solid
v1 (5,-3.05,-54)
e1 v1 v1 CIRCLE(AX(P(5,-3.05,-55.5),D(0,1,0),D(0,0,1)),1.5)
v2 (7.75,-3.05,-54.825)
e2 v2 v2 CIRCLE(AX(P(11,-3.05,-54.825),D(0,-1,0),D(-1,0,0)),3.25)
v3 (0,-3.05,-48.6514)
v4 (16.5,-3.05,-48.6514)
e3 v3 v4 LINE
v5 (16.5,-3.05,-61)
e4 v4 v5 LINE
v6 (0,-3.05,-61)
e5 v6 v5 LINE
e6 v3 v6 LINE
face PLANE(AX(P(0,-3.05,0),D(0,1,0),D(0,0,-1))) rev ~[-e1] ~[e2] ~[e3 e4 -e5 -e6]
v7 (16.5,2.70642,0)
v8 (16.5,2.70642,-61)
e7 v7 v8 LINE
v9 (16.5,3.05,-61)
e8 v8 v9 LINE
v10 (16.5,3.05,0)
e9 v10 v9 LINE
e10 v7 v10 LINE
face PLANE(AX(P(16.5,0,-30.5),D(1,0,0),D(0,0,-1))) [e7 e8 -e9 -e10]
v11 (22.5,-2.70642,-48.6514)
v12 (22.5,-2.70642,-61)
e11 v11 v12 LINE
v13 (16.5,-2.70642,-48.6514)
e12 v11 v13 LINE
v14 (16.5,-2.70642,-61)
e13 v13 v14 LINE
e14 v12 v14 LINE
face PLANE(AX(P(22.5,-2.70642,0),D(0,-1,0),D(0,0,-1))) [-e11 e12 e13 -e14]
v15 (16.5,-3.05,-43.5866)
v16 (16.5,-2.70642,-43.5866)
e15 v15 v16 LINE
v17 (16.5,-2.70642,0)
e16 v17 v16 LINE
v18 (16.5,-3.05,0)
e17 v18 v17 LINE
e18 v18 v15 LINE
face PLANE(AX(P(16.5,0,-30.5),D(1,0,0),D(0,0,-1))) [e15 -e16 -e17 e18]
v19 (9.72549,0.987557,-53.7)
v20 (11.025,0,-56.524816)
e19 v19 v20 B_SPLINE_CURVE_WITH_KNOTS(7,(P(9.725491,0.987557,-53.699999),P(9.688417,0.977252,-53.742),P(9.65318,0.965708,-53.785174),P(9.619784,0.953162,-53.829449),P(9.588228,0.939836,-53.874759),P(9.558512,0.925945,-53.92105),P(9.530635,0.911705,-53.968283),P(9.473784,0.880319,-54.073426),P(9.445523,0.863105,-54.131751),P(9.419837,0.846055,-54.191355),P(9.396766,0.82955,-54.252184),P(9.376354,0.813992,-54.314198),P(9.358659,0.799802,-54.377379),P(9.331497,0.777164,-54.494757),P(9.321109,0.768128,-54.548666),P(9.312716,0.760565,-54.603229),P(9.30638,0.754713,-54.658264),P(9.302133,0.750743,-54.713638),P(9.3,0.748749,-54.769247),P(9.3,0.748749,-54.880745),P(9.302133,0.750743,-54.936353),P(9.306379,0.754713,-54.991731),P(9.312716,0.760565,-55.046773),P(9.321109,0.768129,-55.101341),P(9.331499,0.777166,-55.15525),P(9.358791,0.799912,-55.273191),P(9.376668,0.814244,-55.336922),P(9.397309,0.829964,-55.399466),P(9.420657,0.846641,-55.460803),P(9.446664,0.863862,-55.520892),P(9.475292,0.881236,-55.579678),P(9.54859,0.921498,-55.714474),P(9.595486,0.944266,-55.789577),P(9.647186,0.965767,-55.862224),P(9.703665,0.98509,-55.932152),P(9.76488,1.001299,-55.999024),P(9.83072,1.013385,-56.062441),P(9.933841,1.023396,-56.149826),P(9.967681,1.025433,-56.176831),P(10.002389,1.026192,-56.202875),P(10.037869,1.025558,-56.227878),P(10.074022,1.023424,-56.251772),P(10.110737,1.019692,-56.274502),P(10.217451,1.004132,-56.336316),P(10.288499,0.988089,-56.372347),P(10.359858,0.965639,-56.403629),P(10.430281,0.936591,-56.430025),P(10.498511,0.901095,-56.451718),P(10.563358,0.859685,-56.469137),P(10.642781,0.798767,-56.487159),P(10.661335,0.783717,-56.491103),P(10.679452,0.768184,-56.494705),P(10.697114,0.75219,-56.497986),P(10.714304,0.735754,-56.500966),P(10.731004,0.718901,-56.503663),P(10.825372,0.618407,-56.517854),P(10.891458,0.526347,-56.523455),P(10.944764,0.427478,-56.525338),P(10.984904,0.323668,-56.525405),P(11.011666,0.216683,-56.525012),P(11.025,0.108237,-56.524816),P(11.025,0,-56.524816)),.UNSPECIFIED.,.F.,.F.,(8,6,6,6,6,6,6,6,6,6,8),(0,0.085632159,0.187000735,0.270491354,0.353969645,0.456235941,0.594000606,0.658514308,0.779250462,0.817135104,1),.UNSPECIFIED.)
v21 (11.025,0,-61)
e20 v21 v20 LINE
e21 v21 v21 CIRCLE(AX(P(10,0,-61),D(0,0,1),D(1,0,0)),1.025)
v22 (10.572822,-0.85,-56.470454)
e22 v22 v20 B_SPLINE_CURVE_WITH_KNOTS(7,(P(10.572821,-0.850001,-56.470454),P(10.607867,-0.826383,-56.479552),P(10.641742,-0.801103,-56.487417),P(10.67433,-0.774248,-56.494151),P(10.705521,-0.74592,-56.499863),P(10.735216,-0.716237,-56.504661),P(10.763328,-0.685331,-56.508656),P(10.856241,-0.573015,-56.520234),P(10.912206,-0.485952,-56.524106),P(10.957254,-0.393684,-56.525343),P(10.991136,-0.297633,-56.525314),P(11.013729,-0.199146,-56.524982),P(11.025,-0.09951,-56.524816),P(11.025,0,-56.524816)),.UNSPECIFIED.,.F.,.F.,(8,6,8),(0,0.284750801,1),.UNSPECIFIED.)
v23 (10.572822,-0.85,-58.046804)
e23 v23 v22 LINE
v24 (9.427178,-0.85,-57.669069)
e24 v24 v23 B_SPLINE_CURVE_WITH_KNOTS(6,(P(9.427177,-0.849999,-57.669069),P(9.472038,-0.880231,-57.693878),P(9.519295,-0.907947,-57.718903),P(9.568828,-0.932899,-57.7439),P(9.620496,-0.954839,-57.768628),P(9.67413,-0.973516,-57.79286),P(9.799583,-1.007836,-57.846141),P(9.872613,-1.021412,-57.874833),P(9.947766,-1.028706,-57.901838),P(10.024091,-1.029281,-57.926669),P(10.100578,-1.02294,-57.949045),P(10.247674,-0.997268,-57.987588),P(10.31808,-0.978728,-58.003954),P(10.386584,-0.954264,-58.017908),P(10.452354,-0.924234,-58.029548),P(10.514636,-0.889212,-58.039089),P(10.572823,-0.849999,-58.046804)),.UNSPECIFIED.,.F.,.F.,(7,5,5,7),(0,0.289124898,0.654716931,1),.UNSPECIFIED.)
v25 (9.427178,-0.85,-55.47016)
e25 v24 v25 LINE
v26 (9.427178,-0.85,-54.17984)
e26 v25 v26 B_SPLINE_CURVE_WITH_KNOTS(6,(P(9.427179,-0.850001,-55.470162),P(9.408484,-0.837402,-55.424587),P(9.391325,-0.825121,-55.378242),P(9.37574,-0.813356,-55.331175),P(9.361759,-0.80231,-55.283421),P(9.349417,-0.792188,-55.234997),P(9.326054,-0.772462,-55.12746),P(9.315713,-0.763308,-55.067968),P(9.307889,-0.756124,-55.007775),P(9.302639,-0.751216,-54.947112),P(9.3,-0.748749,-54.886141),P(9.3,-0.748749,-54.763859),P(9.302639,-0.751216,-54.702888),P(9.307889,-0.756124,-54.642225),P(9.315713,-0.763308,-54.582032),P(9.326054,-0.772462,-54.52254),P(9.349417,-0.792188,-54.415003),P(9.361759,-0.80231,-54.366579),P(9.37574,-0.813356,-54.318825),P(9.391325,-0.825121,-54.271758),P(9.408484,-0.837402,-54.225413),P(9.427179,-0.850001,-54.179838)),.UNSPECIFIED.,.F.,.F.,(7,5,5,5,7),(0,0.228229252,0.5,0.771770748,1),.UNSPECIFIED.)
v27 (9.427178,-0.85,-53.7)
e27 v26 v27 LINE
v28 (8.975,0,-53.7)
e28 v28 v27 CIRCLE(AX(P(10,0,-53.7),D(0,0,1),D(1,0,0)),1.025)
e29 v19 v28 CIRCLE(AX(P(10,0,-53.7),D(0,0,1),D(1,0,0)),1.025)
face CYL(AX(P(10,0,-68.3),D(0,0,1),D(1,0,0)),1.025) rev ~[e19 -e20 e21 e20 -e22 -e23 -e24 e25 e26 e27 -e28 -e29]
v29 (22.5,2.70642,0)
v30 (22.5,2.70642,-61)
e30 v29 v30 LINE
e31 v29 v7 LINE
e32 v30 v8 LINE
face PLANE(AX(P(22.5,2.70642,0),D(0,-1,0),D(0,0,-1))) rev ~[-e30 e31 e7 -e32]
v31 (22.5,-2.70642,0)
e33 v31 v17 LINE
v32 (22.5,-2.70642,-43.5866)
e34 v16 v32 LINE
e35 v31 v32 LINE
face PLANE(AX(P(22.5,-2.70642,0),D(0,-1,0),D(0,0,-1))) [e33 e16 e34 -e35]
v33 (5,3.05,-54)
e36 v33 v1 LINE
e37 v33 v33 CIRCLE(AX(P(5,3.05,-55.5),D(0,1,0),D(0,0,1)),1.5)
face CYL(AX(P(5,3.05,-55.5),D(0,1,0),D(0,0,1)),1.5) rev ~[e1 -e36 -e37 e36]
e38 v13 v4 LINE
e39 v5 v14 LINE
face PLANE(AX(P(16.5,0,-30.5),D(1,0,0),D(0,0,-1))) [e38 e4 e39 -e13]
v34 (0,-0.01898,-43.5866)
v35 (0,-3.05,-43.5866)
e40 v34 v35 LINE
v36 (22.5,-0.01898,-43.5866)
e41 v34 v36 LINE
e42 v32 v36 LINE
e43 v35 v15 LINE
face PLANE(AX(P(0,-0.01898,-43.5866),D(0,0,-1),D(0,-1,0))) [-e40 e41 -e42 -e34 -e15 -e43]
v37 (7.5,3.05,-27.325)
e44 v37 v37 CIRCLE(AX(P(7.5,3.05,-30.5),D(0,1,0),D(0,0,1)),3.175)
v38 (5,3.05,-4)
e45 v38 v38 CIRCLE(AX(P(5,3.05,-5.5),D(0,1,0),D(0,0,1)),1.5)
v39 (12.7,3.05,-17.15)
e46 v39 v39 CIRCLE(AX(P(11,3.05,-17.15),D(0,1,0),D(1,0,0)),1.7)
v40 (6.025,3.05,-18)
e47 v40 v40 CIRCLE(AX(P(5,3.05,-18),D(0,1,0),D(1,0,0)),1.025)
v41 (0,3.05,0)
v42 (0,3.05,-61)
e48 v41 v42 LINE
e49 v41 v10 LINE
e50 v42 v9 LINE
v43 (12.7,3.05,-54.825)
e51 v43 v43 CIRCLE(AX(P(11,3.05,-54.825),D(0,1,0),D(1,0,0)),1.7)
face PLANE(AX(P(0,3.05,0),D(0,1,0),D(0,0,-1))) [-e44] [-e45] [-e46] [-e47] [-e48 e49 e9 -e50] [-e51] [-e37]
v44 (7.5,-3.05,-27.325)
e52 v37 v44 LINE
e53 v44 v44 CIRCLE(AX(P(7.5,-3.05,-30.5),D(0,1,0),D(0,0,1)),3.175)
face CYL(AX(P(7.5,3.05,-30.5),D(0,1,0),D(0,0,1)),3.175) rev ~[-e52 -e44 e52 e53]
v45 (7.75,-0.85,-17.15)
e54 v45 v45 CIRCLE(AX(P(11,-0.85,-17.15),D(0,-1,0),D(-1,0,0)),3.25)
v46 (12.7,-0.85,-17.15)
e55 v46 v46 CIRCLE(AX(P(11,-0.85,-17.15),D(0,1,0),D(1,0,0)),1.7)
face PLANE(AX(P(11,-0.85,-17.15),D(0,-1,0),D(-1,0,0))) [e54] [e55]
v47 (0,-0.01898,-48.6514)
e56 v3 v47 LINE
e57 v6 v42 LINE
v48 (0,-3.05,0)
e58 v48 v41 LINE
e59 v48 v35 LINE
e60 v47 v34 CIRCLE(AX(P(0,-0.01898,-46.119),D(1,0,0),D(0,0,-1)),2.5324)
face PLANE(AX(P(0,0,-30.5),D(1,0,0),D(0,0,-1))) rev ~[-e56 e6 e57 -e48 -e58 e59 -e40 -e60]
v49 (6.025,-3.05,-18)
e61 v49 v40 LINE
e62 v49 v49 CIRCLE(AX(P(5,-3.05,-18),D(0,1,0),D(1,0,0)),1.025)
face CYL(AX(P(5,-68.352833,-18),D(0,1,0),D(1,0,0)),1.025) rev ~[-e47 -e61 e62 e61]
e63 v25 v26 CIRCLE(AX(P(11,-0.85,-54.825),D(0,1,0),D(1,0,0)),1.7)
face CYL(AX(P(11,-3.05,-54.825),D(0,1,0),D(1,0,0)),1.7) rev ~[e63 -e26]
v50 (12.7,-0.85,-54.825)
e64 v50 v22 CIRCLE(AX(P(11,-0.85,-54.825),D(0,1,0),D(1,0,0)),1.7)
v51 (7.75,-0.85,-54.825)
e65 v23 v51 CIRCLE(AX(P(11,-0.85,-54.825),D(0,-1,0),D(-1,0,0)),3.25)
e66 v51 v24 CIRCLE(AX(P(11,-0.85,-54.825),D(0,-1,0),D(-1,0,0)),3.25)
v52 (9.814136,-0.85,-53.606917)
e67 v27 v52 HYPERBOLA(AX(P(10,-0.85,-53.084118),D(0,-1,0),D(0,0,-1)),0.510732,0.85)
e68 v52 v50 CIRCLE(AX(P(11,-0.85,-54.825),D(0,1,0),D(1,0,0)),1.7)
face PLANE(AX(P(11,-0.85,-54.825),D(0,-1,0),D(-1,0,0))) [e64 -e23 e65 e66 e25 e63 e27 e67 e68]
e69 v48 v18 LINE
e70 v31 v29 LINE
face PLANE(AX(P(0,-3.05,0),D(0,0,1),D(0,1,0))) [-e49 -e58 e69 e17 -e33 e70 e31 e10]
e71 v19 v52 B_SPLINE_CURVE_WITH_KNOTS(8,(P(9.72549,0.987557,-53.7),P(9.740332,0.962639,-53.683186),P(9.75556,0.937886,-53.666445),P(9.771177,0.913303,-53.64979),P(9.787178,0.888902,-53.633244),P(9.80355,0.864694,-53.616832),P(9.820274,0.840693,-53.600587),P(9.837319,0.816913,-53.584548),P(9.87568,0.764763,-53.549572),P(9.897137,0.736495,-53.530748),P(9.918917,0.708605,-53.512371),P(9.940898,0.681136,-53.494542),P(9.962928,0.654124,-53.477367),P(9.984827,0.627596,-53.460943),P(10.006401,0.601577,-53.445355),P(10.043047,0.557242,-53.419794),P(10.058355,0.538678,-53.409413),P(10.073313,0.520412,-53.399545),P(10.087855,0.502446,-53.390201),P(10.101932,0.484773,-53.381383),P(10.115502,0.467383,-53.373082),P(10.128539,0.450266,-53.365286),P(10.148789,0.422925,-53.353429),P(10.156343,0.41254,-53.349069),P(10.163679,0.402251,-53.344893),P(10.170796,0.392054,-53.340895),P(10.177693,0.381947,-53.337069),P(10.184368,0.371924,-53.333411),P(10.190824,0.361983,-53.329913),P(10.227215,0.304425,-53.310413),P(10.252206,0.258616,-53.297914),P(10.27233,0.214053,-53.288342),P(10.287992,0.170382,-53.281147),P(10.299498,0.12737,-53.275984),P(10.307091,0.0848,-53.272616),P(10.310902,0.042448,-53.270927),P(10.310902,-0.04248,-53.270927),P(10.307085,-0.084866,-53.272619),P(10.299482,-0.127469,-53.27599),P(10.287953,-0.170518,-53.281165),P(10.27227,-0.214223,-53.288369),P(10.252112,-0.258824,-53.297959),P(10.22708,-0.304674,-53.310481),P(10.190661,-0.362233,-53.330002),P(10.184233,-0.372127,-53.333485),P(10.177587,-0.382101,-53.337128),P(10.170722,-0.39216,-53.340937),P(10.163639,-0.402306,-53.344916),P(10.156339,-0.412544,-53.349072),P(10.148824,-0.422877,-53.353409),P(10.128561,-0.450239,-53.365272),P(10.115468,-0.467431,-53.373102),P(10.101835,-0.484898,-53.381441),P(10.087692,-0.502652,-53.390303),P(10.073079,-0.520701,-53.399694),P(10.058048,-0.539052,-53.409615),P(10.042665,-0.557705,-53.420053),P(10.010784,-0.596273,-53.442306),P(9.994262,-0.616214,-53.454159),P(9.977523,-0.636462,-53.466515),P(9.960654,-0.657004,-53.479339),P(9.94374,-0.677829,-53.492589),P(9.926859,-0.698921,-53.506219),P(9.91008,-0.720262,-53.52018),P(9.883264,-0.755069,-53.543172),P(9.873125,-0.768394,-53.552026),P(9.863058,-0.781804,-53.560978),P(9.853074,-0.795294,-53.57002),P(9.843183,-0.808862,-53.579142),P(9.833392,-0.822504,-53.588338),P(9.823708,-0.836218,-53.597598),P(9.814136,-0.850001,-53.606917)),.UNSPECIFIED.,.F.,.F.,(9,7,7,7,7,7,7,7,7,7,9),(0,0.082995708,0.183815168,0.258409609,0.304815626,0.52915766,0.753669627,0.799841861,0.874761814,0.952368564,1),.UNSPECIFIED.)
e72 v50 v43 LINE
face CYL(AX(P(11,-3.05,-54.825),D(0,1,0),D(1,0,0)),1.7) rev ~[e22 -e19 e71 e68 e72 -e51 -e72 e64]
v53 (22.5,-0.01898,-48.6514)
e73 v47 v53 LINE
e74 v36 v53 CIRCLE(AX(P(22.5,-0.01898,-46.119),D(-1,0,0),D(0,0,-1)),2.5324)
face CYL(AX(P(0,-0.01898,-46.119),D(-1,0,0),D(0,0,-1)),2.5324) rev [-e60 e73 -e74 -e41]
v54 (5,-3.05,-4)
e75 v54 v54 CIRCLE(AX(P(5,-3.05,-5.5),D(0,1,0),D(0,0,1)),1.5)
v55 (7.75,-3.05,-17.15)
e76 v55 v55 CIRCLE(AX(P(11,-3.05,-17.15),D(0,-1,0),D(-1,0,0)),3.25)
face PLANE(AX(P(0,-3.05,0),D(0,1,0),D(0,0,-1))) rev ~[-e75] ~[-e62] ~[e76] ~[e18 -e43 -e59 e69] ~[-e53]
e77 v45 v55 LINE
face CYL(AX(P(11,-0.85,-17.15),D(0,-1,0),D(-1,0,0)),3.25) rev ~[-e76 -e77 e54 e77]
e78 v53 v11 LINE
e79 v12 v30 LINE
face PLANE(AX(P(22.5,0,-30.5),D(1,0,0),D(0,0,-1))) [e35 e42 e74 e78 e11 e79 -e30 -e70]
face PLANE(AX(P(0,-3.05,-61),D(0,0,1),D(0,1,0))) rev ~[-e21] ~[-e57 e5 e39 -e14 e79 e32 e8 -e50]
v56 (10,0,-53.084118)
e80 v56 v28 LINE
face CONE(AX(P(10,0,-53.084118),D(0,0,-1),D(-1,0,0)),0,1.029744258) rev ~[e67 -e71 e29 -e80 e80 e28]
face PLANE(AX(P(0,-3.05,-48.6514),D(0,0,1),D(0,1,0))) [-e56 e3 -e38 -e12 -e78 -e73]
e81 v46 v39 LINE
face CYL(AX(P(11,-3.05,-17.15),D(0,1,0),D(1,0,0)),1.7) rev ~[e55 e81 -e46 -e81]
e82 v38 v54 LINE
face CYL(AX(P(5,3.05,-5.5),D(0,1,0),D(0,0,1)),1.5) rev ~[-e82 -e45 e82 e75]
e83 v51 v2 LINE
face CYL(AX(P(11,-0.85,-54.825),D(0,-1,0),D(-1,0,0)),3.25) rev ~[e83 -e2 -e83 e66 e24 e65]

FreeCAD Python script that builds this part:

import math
import FreeCAD as App
import Part
import Sketcher


def add_polygon(sketch, points):
    """Adds a closed chain of lines whose ends are joined by coincident constraints."""
    first, n = sketch.GeometryCount, len(points)
    for a, b in zip(points, points[1:] + points[:1]):
        sketch.addGeometry(Part.LineSegment(App.Vector(*a, 0), App.Vector(*b, 0)), False)
    for i in range(n):
        sketch.addConstraint(Sketcher.Constraint("Coincident", first + i, 2, first + (i + 1) % n, 1))

doc = App.newDocument("Part")
body = doc.addObject("PartDesign::Body", "Body")

sketch1 = body.newObject("Sketcher::SketchObject", "Sketch")
sketch1.AttachmentSupport = (doc.getObject("YZ_Plane"), [""])
sketch1.MapMode = "FlatFace"
add_polygon(sketch1, [(3, 0), (-3, 0), (-3, -61), (3, -61)])
sketch1.addConstraint([
    Sketcher.Constraint("Horizontal", 0),
    Sketcher.Constraint("Vertical", 1),
    Sketcher.Constraint("Horizontal", 2),
    Sketcher.Constraint("Vertical", 3),
    Sketcher.Constraint("Symmetric", 0, 2, 3, 2, -1, 1),
    Sketcher.Constraint("DistanceY", 1, 2, 1, 1, 61.0),
    Sketcher.Constraint("DistanceX", 0, 2, 0, 1, 6.1),
])
pad1 = body.newObject("PartDesign::Pad", "Pad")
pad1.Profile = sketch1
pad1.Length = 22.5

sketch2 = body.newObject("Sketcher::SketchObject", "Sketch001")
sketch2.AttachmentSupport = (doc.getObject("YZ_Plane"), [""])
sketch2.MapMode = "FlatFace"
sketch2.AttachmentOffset = App.Placement(App.Vector(0, 0, 22.5), App.Rotation())
add_polygon(sketch2, [(11, 8), (-11, 8), (-11, -69), (11, -69)])
add_polygon(sketch2, [(-3, -61), (-3, 0), (3, 0), (3, -61)])
sketch2.addConstraint([
    Sketcher.Constraint("Horizontal", 0),
    Sketcher.Constraint("Vertical", 1),
    Sketcher.Constraint("Horizontal", 2),
    Sketcher.Constraint("Vertical", 3),
    Sketcher.Constraint("Vertical", 4),
    Sketcher.Constraint("Horizontal", 5),
    Sketcher.Constraint("Vertical", 6),
    Sketcher.Constraint("Horizontal", 7),
    Sketcher.Constraint("Symmetric", 4, 2, 5, 2, -1, 1),
    Sketcher.Constraint("DistanceY", 4, 1, 4, 2, 61.0),
    Sketcher.Constraint("DistanceX", 0, 2, 0, 1, 21.16),
    Sketcher.Constraint("DistanceY", 1, 2, 1, 1, 76.06),
    Sketcher.Constraint("DistanceX", 0, 2, -1, 1, 10.58),
    Sketcher.Constraint("DistanceY", -1, 1, 0, 2, 7.53),
    Sketcher.Constraint("DistanceX", 5, 1, 5, 2, 5.41284),
])
pocket1 = body.newObject("PartDesign::Pocket", "Pocket")
pocket1.Profile = sketch2
pocket1.Length = 6

sketch3 = body.newObject("Sketcher::SketchObject", "Sketch002")
sketch3.AttachmentSupport = (doc.getObject("YZ_Plane"), [""])
sketch3.MapMode = "FlatFace"
sketch3.addGeometry([
    Part.LineSegment(App.Vector(-3, -43.6, 0), App.Vector(0, -43.6, 0)),
    Part.ArcOfCircle(Part.Circle(App.Vector(0, -46.1, 0), App.Vector(0, 0, 1), 2.5), math.radians(-90), math.radians(90)),
    Part.LineSegment(App.Vector(0, -48.7, 0), App.Vector(-3, -48.7, 0)),
    Part.LineSegment(App.Vector(-3, -48.7, 0), App.Vector(-3, -43.6, 0)),
], False)
sketch3.addConstraint([
    Sketcher.Constraint("Tangent", 0, 2, 1, 2),
    Sketcher.Constraint("Tangent", 1, 1, 2, 1),
    Sketcher.Constraint("Coincident", 2, 2, 3, 1),
    Sketcher.Constraint("Coincident", 3, 2, 0, 1),
    Sketcher.Constraint("Horizontal", 0),
    Sketcher.Constraint("Horizontal", 2),
    Sketcher.Constraint("Vertical", 3),
    Sketcher.Constraint("Radius", 1, 2.5324),
    Sketcher.Constraint("DistanceX", 2, 2, -1, 1, 3.05),
    Sketcher.Constraint("DistanceY", 1, 3, -1, 1, 46.119),
    Sketcher.Constraint("DistanceX", 0, 1, 0, 2, 3.03102),
])
pocket2 = body.newObject("PartDesign::Pocket", "Pocket001")
pocket2.Profile = sketch3
pocket2.Type = "ThroughAll"
pocket2.Reversed = True

sketch4 = body.newObject("Sketcher::SketchObject", "Sketch003")
sketch4.AttachmentSupport = (doc.getObject("XZ_Plane"), [""])
sketch4.MapMode = "FlatFace"
sketch4.AttachmentOffset = App.Placement(App.Vector(0, 0, -3.05), App.Rotation())
sketch4.addGeometry(Part.Circle(App.Vector(7.5, -30.5, 0), App.Vector(0, 0, 1), 3.2), False)
sketch4.addConstraint([
    Sketcher.Constraint("Diameter", 0, 6.35),
    Sketcher.Constraint("DistanceX", -1, 1, 0, 3, 7.5),
    Sketcher.Constraint("DistanceY", 0, 3, -1, 1, 30.5),
])
pocket3 = body.newObject("PartDesign::Pocket", "Pocket002")
pocket3.Profile = sketch4
pocket3.Type = "ThroughAll"
pocket3.Reversed = True

sketch5 = body.newObject("Sketcher::SketchObject", "Sketch004")
sketch5.AttachmentSupport = (doc.getObject("XZ_Plane"), [""])
sketch5.MapMode = "FlatFace"
sketch5.AttachmentOffset = App.Placement(App.Vector(0, 0, -3.05), App.Rotation())
sketch5.addGeometry([
    Part.Circle(App.Vector(5, -55.5, 0), App.Vector(0, 0, 1), 1.5),
    Part.Circle(App.Vector(5, -5.5, 0), App.Vector(0, 0, 1), 1.5),
], False)
sketch5.addConstraint([
    Sketcher.Constraint("Equal", 0, 1),
    Sketcher.Constraint("Vertical", 0, 3, 1, 3),
    Sketcher.Constraint("Diameter", 0, 3.0),
    Sketcher.Constraint("DistanceX", -1, 1, 0, 3, 5.0),
    Sketcher.Constraint("DistanceY", 0, 3, 1, 3, 50.0),
    Sketcher.Constraint("DistanceY", 0, 3, -1, 1, 55.5),
])
pocket4 = body.newObject("PartDesign::Pocket", "Pocket003")
pocket4.Profile = sketch5
pocket4.Type = "ThroughAll"
pocket4.Reversed = True

sketch6 = body.newObject("Sketcher::SketchObject", "Sketch005")
sketch6.AttachmentSupport = (doc.getObject("XZ_Plane"), [""])
sketch6.MapMode = "FlatFace"
sketch6.AttachmentOffset = App.Placement(App.Vector(0, 0, 3.05), App.Rotation())
sketch6.addGeometry(Part.Circle(App.Vector(5, -18, 0), App.Vector(0, 0, 1), 1), False)
sketch6.addConstraint([
    Sketcher.Constraint("Diameter", 0, 2.05),
    Sketcher.Constraint("DistanceX", -1, 1, 0, 3, 5.0),
    Sketcher.Constraint("DistanceY", 0, 3, -1, 1, 18.0),
])
doc.recompute()
hole = body.newObject("PartDesign::Hole", "Hole")
hole.Profile = sketch6
hole.ThreadType = "None"
hole.Diameter = 2.05
hole.DepthType = "ThroughAll"

sketch7 = body.newObject("Sketcher::SketchObject", "Sketch006")
sketch7.AttachmentSupport = (doc.getObject("XY_Plane"), [""])
sketch7.MapMode = "FlatFace"
sketch7.AttachmentOffset = App.Placement(App.Vector(0, 0, -61), App.Rotation())
sketch7.addGeometry(Part.Circle(App.Vector(10, 0, 0), App.Vector(0, 0, 1), 1), False)
sketch7.addConstraint([
    Sketcher.Constraint("PointOnObject", 0, 3, -1),
    Sketcher.Constraint("Diameter", 0, 2.05),
    Sketcher.Constraint("DistanceX", -1, 1, 0, 3, 10.0),
])
doc.recompute()
hole2 = body.newObject("PartDesign::Hole", "Hole001")
hole2.Profile = sketch7
hole2.ThreadType = "None"
hole2.Diameter = 2.05
hole2.DepthType = "Dimension"
hole2.Depth = 7.3
hole2.DrillPoint = "Angled"
hole2.DrillPointAngle = 118
hole2.Reversed = True

sketch8 = body.newObject("Sketcher::SketchObject", "Sketch007")
sketch8.AttachmentSupport = (doc.getObject("XZ_Plane"), [""])
sketch8.MapMode = "FlatFace"
sketch8.AttachmentOffset = App.Placement(App.Vector(0, 0, 3.05), App.Rotation())
sketch8.addGeometry([
    Part.Circle(App.Vector(11, -54.8, 0), App.Vector(0, 0, 1), 1.7),
    Part.Circle(App.Vector(11, -17.1, 0), App.Vector(0, 0, 1), 1.7),
], False)
sketch8.addConstraint([
    Sketcher.Constraint("Equal", 0, 1),
    Sketcher.Constraint("Vertical", 0, 3, 1, 3),
    Sketcher.Constraint("Diameter", 0, 3.4),
    Sketcher.Constraint("DistanceX", -1, 1, 0, 3, 11.0),
    Sketcher.Constraint("DistanceY", 1, 3, -1, 1, 17.15),
    Sketcher.Constraint("DistanceY", 0, 3, -1, 1, 54.825),
])
doc.recompute()
hole3 = body.newObject("PartDesign::Hole", "Hole002")
hole3.Profile = sketch8
hole3.ThreadType = "None"
hole3.Diameter = 3.4
hole3.DepthType = "ThroughAll"
hole3.HoleCutType = "Counterbore"
hole3.HoleCutDiameter = 6.5
hole3.HoleCutDepth = 2.2

doc.recompute()
